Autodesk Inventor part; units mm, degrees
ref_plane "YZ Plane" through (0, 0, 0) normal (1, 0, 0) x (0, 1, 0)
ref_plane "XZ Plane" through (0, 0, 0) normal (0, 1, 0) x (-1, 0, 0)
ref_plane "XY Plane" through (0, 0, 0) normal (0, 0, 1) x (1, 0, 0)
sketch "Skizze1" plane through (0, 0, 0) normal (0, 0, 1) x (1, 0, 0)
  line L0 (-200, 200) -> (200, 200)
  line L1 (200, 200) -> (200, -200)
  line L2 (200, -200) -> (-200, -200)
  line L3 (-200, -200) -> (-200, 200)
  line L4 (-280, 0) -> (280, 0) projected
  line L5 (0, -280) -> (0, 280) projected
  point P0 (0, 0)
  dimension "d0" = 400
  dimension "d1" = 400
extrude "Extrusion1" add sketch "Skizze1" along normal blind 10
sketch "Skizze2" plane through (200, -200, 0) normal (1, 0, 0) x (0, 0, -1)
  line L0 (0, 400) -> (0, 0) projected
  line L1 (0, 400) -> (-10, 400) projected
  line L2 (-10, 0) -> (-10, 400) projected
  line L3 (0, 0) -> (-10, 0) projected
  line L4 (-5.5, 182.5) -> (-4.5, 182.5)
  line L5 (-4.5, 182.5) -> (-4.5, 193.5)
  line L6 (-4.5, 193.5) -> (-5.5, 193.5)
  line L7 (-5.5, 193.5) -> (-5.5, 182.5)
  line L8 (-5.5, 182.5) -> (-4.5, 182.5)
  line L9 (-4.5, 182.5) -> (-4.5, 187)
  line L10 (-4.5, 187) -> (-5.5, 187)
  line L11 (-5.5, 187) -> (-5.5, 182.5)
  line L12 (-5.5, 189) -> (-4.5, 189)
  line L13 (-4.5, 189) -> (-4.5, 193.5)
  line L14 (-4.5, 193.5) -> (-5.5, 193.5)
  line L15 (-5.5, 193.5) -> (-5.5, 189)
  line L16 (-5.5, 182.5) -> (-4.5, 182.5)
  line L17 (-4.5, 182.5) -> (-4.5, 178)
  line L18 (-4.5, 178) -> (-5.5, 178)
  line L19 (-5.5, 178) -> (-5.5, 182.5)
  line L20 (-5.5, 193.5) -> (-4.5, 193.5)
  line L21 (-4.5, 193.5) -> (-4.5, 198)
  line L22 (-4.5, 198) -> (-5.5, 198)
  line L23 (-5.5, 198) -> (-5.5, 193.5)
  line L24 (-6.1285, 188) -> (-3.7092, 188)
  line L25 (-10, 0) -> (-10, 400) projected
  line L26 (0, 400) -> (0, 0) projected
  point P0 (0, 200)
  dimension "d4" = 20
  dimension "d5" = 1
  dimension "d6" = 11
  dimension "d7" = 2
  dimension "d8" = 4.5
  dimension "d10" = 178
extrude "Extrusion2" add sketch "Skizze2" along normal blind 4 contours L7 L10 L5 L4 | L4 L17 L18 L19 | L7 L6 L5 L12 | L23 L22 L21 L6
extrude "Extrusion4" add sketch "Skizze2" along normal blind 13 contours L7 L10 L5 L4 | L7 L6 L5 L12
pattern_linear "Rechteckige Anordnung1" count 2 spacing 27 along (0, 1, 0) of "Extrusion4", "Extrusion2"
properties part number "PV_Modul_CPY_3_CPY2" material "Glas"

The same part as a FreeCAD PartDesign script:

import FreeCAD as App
import Part
import Sketcher


def add_polygon(sketch, points):
    """Adds a closed chain of lines whose ends are joined by coincident constraints."""
    first, n = sketch.GeometryCount, len(points)
    for a, b in zip(points, points[1:] + points[:1]):
        sketch.addGeometry(Part.LineSegment(App.Vector(*a, 0), App.Vector(*b, 0)), False)
    for i in range(n):
        sketch.addConstraint(Sketcher.Constraint("Coincident", first + i, 2, first + (i + 1) % n, 1))

doc = App.newDocument("Part")
body = doc.addObject("PartDesign::Body", "Body")

# Sketch on XY plane
sketch1 = body.newObject("Sketcher::SketchObject", "Sketch")
sketch1.AttachmentSupport = (doc.getObject("XY_Plane"), [""])
sketch1.MapMode = "FlatFace"
add_polygon(sketch1, [(-200, 200), (-200, -200), (200, -200), (200, 200)])  # lines 0-3
sketch1.addConstraint([
    Sketcher.Constraint("Vertical", 0),
    Sketcher.Constraint("Horizontal", 1),
    Sketcher.Constraint("Vertical", 2),
    Sketcher.Constraint("Horizontal", 3),
    Sketcher.Constraint("Symmetric", 0, 2, 2, 2, -1, 1),
    Sketcher.Constraint("Equal", 3, 0),
    Sketcher.Constraint("DistanceX", 1, 1, 1, 2, 400.0),
])
pad1 = body.newObject("PartDesign::Pad", "Pad")
pad1.Profile = sketch1
pad1.Length = 10

# Sketch on YZ plane
sketch2 = body.newObject("Sketcher::SketchObject", "Sketch001")
sketch2.AttachmentSupport = (doc.getObject("YZ_Plane"), [""])
sketch2.MapMode = "FlatFace"
sketch2.AttachmentOffset = App.Placement(App.Vector(0, 0, 200), App.Rotation())
add_polygon(sketch2, [(-13, 5.5), (-22, 5.5), (-22, 4.5), (-13, 4.5)])  # lines 0-3
add_polygon(sketch2, [(-11, 5.5), (-11, 4.5), (-2, 4.5), (-2, 5.5)])  # lines 4-7
sketch2.addConstraint([
    Sketcher.Constraint("Horizontal", 0),
    Sketcher.Constraint("Vertical", 1),
    Sketcher.Constraint("Horizontal", 2),
    Sketcher.Constraint("Vertical", 3),
    Sketcher.Constraint("Vertical", 4),
    Sketcher.Constraint("Horizontal", 5),
    Sketcher.Constraint("Vertical", 6),
    Sketcher.Constraint("Horizontal", 7),
    Sketcher.Constraint("Horizontal", 2, 2, 4, 2),
    Sketcher.Constraint("Horizontal", 3, 2, 6, 2),
    Sketcher.Constraint("Equal", 2, 5),
    Sketcher.Constraint("DistanceY", 1, 2, 1, 1, 1.0),
    Sketcher.Constraint("DistanceX", 4, 2, -1, 1, 11.0),
    Sketcher.Constraint("DistanceX", 5, 2, -1, 1, 2.0),
    Sketcher.Constraint("DistanceX", 2, 2, 4, 2, 2.0),
    Sketcher.Constraint("DistanceY", -1, 1, 1, 2, 4.5),
])
pad2 = body.newObject("PartDesign::Pad", "Pad001")
pad2.Profile = sketch2
pad2.Length = 4

# Sketch on YZ plane
sketch3 = body.newObject("Sketcher::SketchObject", "Sketch002")
sketch3.AttachmentSupport = (doc.getObject("YZ_Plane"), [""])
sketch3.MapMode = "FlatFace"
sketch3.AttachmentOffset = App.Placement(App.Vector(0, 0, 200), App.Rotation())
add_polygon(sketch3, [(-13, 5.5), (-17.5, 5.5), (-17.5, 4.5), (-13, 4.5)])  # lines 0-3
add_polygon(sketch3, [(-6.5, 5.5), (-11, 5.5), (-11, 4.5), (-6.5, 4.5)])  # lines 4-7
sketch3.addConstraint([
    Sketcher.Constraint("Horizontal", 0),
    Sketcher.Constraint("Vertical", 1),
    Sketcher.Constraint("Horizontal", 2),
    Sketcher.Constraint("Vertical", 3),
    Sketcher.Constraint("Horizontal", 4),
    Sketcher.Constraint("Vertical", 5),
    Sketcher.Constraint("Horizontal", 6),
    Sketcher.Constraint("Vertical", 7),
    Sketcher.Constraint("Horizontal", 3, 2, 4, 2),
    Sketcher.Constraint("Horizontal", 2, 2, 5, 2),
    Sketcher.Constraint("Equal", 2, 4),
    Sketcher.Constraint("DistanceY", 1, 2, 1, 1, 1.0),
    Sketcher.Constraint("DistanceX", 0, 2, 0, 1, 4.5),
    Sketcher.Constraint("DistanceX", 4, 2, -1, 1, 11.0),
    Sketcher.Constraint("DistanceX", 3, 2, 4, 2, 2.0),
    Sketcher.Constraint("DistanceY", -1, 1, 1, 2, 4.5),
])
pad3 = body.newObject("PartDesign::Pad", "Pad002")
pad3.Profile = sketch3
pad3.Length = 13
doc.recompute()

linearpattern = body.newObject("PartDesign::LinearPattern", "LinearPattern")
linearpattern.Originals = [pad3, pad2]
linearpattern.Direction = (doc.getObject("Y_Axis"), [""])
linearpattern.Mode = "offset"
linearpattern.Offset = 27
linearpattern.Occurrences = 2
body.Tip = linearpattern

doc.recompute()
